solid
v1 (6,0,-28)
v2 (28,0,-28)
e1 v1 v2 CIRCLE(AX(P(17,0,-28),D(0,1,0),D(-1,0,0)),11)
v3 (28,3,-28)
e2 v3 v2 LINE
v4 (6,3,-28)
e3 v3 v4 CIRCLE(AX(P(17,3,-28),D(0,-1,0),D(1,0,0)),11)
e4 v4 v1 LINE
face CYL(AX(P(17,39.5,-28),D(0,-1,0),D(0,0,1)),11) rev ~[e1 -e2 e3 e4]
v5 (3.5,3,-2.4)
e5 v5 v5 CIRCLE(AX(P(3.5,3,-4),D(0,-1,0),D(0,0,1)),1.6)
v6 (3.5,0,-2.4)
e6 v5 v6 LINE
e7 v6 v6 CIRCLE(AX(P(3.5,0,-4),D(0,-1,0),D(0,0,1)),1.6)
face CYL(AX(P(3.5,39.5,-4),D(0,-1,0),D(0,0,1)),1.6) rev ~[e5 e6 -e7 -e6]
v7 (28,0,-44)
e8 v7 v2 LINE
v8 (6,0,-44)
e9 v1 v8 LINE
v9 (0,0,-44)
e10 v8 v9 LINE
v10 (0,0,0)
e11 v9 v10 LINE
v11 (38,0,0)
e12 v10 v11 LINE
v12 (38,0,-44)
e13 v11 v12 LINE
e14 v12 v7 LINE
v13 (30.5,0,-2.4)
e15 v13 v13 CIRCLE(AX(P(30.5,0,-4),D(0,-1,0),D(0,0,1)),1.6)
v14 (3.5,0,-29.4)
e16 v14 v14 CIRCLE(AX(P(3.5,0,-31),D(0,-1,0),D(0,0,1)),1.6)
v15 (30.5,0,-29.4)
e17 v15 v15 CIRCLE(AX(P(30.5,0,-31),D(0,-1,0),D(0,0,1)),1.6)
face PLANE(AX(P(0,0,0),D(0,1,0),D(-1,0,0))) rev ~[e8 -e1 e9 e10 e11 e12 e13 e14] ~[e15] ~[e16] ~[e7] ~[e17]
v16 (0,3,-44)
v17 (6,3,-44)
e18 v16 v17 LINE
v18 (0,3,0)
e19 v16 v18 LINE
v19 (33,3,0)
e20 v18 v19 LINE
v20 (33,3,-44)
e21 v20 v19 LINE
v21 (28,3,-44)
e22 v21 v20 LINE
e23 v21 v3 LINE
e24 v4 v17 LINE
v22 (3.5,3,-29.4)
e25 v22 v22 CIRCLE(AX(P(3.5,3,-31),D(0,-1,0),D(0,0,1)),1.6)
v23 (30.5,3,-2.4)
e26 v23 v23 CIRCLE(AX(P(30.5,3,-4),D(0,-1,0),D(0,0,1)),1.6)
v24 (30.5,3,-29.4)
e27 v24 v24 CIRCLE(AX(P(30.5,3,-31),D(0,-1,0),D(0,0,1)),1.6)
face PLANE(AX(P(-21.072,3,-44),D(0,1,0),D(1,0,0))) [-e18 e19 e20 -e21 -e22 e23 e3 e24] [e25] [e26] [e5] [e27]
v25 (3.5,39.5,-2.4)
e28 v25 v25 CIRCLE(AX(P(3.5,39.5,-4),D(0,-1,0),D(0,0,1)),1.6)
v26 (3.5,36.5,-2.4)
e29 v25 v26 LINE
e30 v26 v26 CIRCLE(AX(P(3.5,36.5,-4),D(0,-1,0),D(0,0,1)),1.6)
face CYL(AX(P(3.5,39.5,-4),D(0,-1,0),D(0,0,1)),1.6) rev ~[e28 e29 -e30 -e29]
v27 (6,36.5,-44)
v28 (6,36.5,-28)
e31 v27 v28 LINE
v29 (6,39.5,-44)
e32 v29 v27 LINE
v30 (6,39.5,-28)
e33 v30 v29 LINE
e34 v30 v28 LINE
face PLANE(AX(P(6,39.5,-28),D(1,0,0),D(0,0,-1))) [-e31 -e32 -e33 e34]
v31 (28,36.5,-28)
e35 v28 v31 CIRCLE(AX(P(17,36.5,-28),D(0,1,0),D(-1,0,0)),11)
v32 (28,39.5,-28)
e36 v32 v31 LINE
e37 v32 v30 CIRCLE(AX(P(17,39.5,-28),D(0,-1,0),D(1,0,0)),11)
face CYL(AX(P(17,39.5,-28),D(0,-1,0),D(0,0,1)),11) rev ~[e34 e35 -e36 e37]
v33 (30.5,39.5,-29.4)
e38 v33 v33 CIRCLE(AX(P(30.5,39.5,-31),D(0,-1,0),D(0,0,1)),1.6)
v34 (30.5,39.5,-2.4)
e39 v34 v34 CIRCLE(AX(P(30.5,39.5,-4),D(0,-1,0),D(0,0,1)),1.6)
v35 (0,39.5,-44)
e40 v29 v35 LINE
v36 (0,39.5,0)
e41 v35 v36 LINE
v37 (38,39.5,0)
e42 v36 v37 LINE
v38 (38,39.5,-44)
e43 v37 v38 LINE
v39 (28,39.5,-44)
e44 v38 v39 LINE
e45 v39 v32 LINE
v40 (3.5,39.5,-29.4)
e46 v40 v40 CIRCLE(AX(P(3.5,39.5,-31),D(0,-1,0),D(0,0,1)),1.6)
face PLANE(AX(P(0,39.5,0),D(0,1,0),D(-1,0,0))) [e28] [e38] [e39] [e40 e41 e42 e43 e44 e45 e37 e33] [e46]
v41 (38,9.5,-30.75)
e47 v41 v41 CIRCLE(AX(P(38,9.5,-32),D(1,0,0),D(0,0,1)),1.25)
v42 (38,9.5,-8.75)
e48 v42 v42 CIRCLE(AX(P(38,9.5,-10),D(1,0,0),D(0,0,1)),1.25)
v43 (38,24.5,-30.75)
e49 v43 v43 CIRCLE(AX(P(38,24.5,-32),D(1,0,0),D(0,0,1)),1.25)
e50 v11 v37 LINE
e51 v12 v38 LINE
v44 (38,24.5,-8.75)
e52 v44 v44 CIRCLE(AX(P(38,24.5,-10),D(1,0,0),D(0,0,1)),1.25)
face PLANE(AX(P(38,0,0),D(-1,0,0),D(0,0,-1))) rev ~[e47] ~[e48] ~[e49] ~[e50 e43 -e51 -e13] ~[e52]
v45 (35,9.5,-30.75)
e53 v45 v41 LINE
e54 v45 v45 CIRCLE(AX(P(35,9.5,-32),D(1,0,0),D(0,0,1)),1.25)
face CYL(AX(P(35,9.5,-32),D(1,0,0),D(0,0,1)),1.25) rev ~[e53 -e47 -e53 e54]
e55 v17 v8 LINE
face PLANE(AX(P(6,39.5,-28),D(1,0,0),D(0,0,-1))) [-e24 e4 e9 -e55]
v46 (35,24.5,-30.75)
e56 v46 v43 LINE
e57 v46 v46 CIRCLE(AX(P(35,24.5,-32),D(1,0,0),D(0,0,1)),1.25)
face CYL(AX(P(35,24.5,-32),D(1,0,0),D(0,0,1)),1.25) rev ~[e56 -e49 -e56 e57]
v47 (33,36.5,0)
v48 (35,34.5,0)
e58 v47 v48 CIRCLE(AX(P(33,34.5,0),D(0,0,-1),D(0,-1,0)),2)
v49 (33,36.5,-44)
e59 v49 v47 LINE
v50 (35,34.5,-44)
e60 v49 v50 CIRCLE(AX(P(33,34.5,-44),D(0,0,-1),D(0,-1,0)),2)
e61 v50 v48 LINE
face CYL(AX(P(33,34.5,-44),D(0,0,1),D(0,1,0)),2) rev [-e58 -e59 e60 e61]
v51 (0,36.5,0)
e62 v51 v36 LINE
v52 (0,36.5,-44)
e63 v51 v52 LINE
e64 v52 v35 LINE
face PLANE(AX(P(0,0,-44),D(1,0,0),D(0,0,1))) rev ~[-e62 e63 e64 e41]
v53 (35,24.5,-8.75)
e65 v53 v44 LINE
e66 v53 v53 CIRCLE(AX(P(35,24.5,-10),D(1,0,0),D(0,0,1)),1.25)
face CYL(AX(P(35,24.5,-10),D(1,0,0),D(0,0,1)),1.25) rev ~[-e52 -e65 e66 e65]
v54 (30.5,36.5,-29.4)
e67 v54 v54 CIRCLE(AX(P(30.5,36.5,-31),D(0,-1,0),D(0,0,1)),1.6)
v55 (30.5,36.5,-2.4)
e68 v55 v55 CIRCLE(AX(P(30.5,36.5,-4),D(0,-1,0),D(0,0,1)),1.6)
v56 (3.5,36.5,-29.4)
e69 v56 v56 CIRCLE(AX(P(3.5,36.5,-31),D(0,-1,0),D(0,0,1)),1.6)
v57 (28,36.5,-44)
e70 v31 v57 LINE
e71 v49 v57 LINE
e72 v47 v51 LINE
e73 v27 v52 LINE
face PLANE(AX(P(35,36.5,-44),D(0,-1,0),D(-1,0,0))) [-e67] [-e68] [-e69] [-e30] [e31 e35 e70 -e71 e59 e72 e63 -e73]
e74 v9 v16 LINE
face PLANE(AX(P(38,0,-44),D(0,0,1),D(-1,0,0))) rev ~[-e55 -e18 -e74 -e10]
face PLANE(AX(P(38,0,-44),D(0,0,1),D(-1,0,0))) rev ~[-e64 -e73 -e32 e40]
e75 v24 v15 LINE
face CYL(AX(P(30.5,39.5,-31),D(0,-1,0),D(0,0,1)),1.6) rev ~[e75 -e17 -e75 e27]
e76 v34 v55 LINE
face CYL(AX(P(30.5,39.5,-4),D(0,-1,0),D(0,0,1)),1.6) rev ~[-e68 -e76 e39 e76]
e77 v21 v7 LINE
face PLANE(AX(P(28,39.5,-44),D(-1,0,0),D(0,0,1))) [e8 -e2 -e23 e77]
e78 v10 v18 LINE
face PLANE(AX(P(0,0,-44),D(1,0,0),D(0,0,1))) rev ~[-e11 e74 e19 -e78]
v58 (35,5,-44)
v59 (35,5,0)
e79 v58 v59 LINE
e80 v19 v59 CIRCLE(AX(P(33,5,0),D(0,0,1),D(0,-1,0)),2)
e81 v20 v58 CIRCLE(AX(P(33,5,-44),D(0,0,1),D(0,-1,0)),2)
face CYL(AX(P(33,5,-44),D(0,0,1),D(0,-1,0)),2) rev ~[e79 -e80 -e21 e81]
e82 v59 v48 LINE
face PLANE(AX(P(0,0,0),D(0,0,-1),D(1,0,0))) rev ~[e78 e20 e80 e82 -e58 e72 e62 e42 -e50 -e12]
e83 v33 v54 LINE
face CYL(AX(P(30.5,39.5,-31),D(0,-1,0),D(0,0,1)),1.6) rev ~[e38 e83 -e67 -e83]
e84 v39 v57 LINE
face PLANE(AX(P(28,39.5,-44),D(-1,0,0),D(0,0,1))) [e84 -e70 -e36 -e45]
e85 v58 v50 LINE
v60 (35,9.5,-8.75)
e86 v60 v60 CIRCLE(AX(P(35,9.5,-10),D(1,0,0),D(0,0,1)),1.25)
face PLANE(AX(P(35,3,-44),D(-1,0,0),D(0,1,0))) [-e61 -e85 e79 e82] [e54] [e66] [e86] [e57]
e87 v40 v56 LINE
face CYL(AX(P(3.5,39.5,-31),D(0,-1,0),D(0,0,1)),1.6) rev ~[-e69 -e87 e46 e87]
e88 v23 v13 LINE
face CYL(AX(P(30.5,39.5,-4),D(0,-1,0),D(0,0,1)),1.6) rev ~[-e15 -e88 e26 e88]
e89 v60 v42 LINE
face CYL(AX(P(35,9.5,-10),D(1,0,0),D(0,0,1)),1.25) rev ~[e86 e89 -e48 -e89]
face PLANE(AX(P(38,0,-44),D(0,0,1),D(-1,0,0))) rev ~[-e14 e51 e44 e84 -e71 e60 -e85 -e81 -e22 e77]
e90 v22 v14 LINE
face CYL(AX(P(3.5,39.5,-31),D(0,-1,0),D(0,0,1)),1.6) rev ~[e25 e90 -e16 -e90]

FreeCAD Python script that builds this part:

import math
import FreeCAD as App
import Part
import Sketcher

V = App.Vector


def edges_at(feature, points):
    """Names of the edges that pass closest to the given points."""
    edges = feature.Shape.Edges
    near = lambda p: min(range(len(edges)), key=lambda i: edges[i].distToShape(Part.Vertex(*p))[0])
    return sorted({f"Edge{near(p) + 1}" for p in points})


def add_polygon(sketch, points):
    """Adds a closed chain of lines whose ends are joined by coincident constraints."""
    first, n = sketch.GeometryCount, len(points)
    for a, b in zip(points, points[1:] + points[:1]):
        sketch.addGeometry(Part.LineSegment(App.Vector(*a, 0), App.Vector(*b, 0)), False)
    for i in range(n):
        sketch.addConstraint(Sketcher.Constraint("Coincident", first + i, 2, first + (i + 1) % n, 1))

doc = App.newDocument("Part")
params = doc.addObject("Spreadsheet::Sheet", "Params")
for row, (alias, value) in enumerate([
    ("sketch1_width", "38 mm"),
    ("sketch1_height", "44 mm"),
    ("pad1_length", "39.5 mm"),
    ("sketch2_height", "33.5 mm"),
    ("pocket1_length", "100 mm"),
    ("sketch3_diameter", "22 mm"),
    ("hole_diameter", "22 mm"),
    ("sketch4_diameter", "3.2 mm"),
    ("hole2_diameter", "3.2 mm"),
    ("fillet_radius", "2 mm"),
    ("sketch5_radius", "11 mm"),
    ("sketch5_height", "16 mm"),
    ("sketch6_diameter", "2.5 mm"),
    ("hole3_diameter", "2.5 mm"),
], start=1):
    params.set(f"A{row}", alias)
    params.set(f"B{row}", "=" + value)
    params.setAlias(f"B{row}", alias)

body = doc.addObject("PartDesign::Body", "Body")

sketch1 = body.newObject("Sketcher::SketchObject", "Sketch")
sketch1.AttachmentSupport = (doc.getObject("XZ_Plane"), [""])
sketch1.MapMode = "FlatFace"
add_polygon(sketch1, [(0, -44), (0, 0), (38, 0), (38, -44)])
sketch1.addConstraint([
    Sketcher.Constraint("Vertical", 0),
    Sketcher.Constraint("Horizontal", 1),
    Sketcher.Constraint("Vertical", 2),
    Sketcher.Constraint("Horizontal", 3),
    Sketcher.Constraint("Coincident", 0, 2, -1, 1),
    Sketcher.Constraint("DistanceX", 1, 1, 1, 2, 38.0),
    Sketcher.Constraint("DistanceY", 0, 1, 0, 2, 44.0),
])
sketch1.setExpression("Constraints[9]", "Params.sketch1_width")
sketch1.setExpression("Constraints[10]", "Params.sketch1_height")
pad1 = body.newObject("PartDesign::Pad", "Pad")
pad1.Profile = sketch1
pad1.setExpression("Length", "Params.pad1_length")
pad1.Reversed = True

sketch2 = body.newObject("Sketcher::SketchObject", "Sketch001")
sketch2.AttachmentSupport = (doc.getObject("XY_Plane"), [""])
sketch2.MapMode = "FlatFace"
sketch2.AttachmentOffset = App.Placement(V(0, 0, -44), App.Rotation())
add_polygon(sketch2, [(-21, 36), (35, 36), (35, 3), (-21, 3)])
sketch2.addConstraint([
    Sketcher.Constraint("Horizontal", 0),
    Sketcher.Constraint("Vertical", 1),
    Sketcher.Constraint("Horizontal", 2),
    Sketcher.Constraint("Vertical", 3),
    Sketcher.Constraint("DistanceY", 1, 2, 1, 1, 33.5),
    Sketcher.Constraint("DistanceY", -1, 1, 1, 2, 3.0),
    Sketcher.Constraint("DistanceX", -1, 1, 0, 2, 35.0),
    Sketcher.Constraint("DistanceX", 0, 1, 0, 2, 56.072),
])
sketch2.setExpression("Constraints[8]", "Params.sketch2_height")
pocket1 = body.newObject("PartDesign::Pocket", "Pocket")
pocket1.Profile = sketch2
pocket1.setExpression("Length", "Params.pocket1_length")
pocket1.Reversed = True

sketch3 = body.newObject("Sketcher::SketchObject", "Sketch002")
sketch3.AttachmentSupport = (doc.getObject("XZ_Plane"), [""])
sketch3.MapMode = "FlatFace"
sketch3.AttachmentOffset = App.Placement(V(0, 0, -39.5), App.Rotation())
sketch3.addGeometry(Part.Circle(V(17, -28, 0), V(0, 0, 1), 11), False)
sketch3.addConstraint([
    Sketcher.Constraint("Diameter", 0, 22.0),
    Sketcher.Constraint("DistanceX", -1, 1, 0, 3, 17.0),
    Sketcher.Constraint("DistanceY", 0, 3, -1, 1, 28.0),
])
sketch3.setExpression("Constraints[0]", "Params.sketch3_diameter")
doc.recompute()
hole = body.newObject("PartDesign::Hole", "Hole")
hole.Profile = sketch3
hole.ThreadType = "None"
hole.setExpression("Diameter", "Params.hole_diameter")
hole.DepthType = "ThroughAll"
hole.Reversed = True

sketch4 = body.newObject("Sketcher::SketchObject", "Sketch003")
sketch4.AttachmentSupport = (doc.getObject("XZ_Plane"), [""])
sketch4.MapMode = "FlatFace"
sketch4.AttachmentOffset = App.Placement(V(0, 0, -39.5), App.Rotation())
sketch4.addGeometry([
    Part.Circle(V(30.5, -4, 0), V(0, 0, 1), 1.6),
    Part.Circle(V(30.5, -31, 0), V(0, 0, 1), 1.6),
    Part.Circle(V(3.5, -31, 0), V(0, 0, 1), 1.6),
    Part.Circle(V(3.5, -4, 0), V(0, 0, 1), 1.6),
], False)
sketch4.addConstraint([
    Sketcher.Constraint("Equal", 0, 1),
    Sketcher.Constraint("Equal", 1, 2),
    Sketcher.Constraint("Equal", 2, 3),
    Sketcher.Constraint("Horizontal", 1, 3, 2, 3),
    Sketcher.Constraint("Horizontal", 0, 3, 3, 3),
    Sketcher.Constraint("Vertical", 0, 3, 1, 3),
    Sketcher.Constraint("Vertical", 2, 3, 3, 3),
    Sketcher.Constraint("Diameter", 0, 3.2),
    Sketcher.Constraint("DistanceY", 0, 3, -1, 1, 4.0),
    Sketcher.Constraint("DistanceY", 1, 3, -1, 1, 31.0),
    Sketcher.Constraint("DistanceX", 2, 3, 1, 3, 27.0),
    Sketcher.Constraint("DistanceX", -1, 1, 0, 3, 30.5),
])
sketch4.setExpression("Constraints[7]", "Params.sketch4_diameter")
doc.recompute()
hole2 = body.newObject("PartDesign::Hole", "Hole001")
hole2.Profile = sketch4
hole2.ThreadType = "None"
hole2.setExpression("Diameter", "Params.hole2_diameter")
hole2.DepthType = "ThroughAll"
hole2.Reversed = True
doc.recompute()

fillet = body.newObject("PartDesign::Fillet", "Fillet")
fillet.Base = (hole2, edges_at(hole2, [(35, 3, -22), (35, 36.5, -22)]))
fillet.setExpression("Radius", "Params.fillet_radius")

sketch5 = body.newObject("Sketcher::SketchObject", "Sketch004")
sketch5.AttachmentSupport = (doc.getObject("XZ_Plane"), [""])
sketch5.MapMode = "FlatFace"
sketch5.AttachmentOffset = App.Placement(V(0, 0, -39.5), App.Rotation())
sketch5.addGeometry([
    Part.LineSegment(V(28, -28, 0), V(28, -44, 0)),
    Part.LineSegment(V(28, -44, 0), V(6, -44, 0)),
    Part.LineSegment(V(6, -44, 0), V(6, -28, 0)),
    Part.ArcOfCircle(Part.Circle(V(17, -28, 0), V(0, 0, 1), 11), math.radians(180), math.radians(360)),
], False)
sketch5.addConstraint([
    Sketcher.Constraint("Coincident", 0, 2, 1, 1),
    Sketcher.Constraint("Coincident", 1, 2, 2, 1),
    Sketcher.Constraint("Tangent", 2, 2, 3, 1),
    Sketcher.Constraint("Tangent", 3, 2, 0, 1),
    Sketcher.Constraint("Vertical", 0),
    Sketcher.Constraint("Horizontal", 1),
    Sketcher.Constraint("Vertical", 2),
    Sketcher.Constraint("Radius", 3, 11.0),
    Sketcher.Constraint("DistanceY", 0, 2, 0, 1, 16.0),
    Sketcher.Constraint("DistanceX", -1, 1, 3, 3, 17.0),
    Sketcher.Constraint("DistanceY", 3, 3, -1, 1, 28.0),
])
sketch5.setExpression("Constraints[7]", "Params.sketch5_radius")
sketch5.setExpression("Constraints[8]", "Params.sketch5_height")
pocket2 = body.newObject("PartDesign::Pocket", "Pocket001")
pocket2.Profile = sketch5
pocket2.Type = "ThroughAll"
pocket2.Reversed = True

sketch6 = body.newObject("Sketcher::SketchObject", "Sketch005")
sketch6.AttachmentSupport = (doc.getObject("YZ_Plane"), [""])
sketch6.MapMode = "FlatFace"
sketch6.AttachmentOffset = App.Placement(V(0, 0, 35), App.Rotation())
sketch6.addGeometry([
    Part.Circle(V(9.5, -10, 0), V(0, 0, 1), 1.2),
    Part.Circle(V(9.5, -32, 0), V(0, 0, 1), 1.2),
    Part.Circle(V(24.5, -32, 0), V(0, 0, 1), 1.2),
    Part.Circle(V(24.5, -10, 0), V(0, 0, 1), 1.2),
], False)
sketch6.addConstraint([
    Sketcher.Constraint("Equal", 0, 1),
    Sketcher.Constraint("Equal", 1, 2),
    Sketcher.Constraint("Equal", 2, 3),
    Sketcher.Constraint("Horizontal", 1, 3, 2, 3),
    Sketcher.Constraint("Horizontal", 0, 3, 3, 3),
    Sketcher.Constraint("Vertical", 0, 3, 1, 3),
    Sketcher.Constraint("Vertical", 2, 3, 3, 3),
    Sketcher.Constraint("Diameter", 0, 2.5),
    Sketcher.Constraint("DistanceY", 0, 3, -1, 1, 10.0),
    Sketcher.Constraint("DistanceY", 1, 3, -1, 1, 32.0),
    Sketcher.Constraint("DistanceX", 1, 3, 2, 3, 15.0),
    Sketcher.Constraint("DistanceX", -1, 1, 0, 3, 9.5),
])
sketch6.setExpression("Constraints[7]", "Params.sketch6_diameter")
doc.recompute()
hole3 = body.newObject("PartDesign::Hole", "Hole002")
hole3.Profile = sketch6
hole3.ThreadType = "None"
hole3.setExpression("Diameter", "Params.hole3_diameter")
hole3.DepthType = "ThroughAll"
hole3.Reversed = True

doc.recompute()
